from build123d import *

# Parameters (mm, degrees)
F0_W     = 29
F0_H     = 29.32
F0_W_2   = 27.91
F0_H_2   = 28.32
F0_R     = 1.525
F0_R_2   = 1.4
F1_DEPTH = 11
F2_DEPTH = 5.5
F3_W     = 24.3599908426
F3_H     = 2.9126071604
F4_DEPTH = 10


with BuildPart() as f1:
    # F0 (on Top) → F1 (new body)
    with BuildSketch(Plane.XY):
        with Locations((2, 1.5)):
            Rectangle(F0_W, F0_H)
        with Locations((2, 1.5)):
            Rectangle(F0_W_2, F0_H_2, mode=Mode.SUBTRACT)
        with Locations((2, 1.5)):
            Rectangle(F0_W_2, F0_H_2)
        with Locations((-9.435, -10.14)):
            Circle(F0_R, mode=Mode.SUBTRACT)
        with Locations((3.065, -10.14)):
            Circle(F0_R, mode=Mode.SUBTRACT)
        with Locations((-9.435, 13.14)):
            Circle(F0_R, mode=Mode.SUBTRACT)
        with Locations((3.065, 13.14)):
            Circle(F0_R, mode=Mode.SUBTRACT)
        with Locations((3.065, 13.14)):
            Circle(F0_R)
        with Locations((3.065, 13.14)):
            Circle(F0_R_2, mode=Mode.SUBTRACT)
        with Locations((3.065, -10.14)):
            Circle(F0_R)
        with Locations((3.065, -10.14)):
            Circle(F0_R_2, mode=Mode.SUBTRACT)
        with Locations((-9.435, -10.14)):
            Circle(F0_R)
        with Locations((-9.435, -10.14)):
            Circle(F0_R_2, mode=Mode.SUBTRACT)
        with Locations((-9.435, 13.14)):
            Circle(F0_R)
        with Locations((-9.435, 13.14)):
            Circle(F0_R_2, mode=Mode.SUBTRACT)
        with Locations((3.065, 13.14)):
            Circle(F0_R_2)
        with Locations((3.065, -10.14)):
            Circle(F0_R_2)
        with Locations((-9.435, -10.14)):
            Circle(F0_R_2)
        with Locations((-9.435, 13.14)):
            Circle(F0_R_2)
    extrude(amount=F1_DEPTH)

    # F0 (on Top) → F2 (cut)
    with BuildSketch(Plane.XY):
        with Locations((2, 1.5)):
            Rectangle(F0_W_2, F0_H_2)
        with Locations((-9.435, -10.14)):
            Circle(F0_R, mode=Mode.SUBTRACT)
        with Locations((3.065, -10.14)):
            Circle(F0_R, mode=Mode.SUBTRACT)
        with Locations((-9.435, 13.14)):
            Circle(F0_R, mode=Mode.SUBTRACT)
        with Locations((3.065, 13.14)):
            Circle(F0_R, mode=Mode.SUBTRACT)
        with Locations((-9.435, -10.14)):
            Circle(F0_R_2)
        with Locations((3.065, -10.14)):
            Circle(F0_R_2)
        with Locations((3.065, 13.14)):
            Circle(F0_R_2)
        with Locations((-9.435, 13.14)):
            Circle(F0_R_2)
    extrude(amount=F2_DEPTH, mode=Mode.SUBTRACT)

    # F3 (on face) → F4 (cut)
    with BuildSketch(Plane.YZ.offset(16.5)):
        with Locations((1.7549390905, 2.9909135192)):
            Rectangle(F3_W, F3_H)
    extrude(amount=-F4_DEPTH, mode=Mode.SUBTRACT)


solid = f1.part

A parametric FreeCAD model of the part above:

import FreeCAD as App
import Part
import Sketcher

V = App.Vector

doc = App.newDocument("Part")
body = doc.addObject("PartDesign::Body", "Body")

sketch1 = doc.addObject("Sketcher::SketchObject", "Sketch")
body.addObject(sketch1)
sketch1.AttachmentSupport = (doc.XY_Plane, [""])
sketch1.MapMode = "FlatFace"
sketch1.addGeometry(Part.LineSegment(V(-12, 16, 0), V(-12, -13, 0)), False)
sketch1.addGeometry(Part.LineSegment(V(-12, -13, 0), V(16, -13, 0)), False)
sketch1.addGeometry(Part.LineSegment(V(16, -13, 0), V(16, 16, 0)), False)
sketch1.addGeometry(Part.LineSegment(V(16, 16, 0), V(-12, 16, 0)), False)
sketch1.addConstraint(Sketcher.Constraint("Coincident", 0, 2, 1, 1))
sketch1.addConstraint(Sketcher.Constraint("Coincident", 1, 2, 2, 1))
sketch1.addConstraint(Sketcher.Constraint("Coincident", 2, 2, 3, 1))
sketch1.addConstraint(Sketcher.Constraint("Coincident", 3, 2, 0, 1))
sketch1.addConstraint(Sketcher.Constraint("Vertical", 0))
sketch1.addConstraint(Sketcher.Constraint("Horizontal", 1))
sketch1.addConstraint(Sketcher.Constraint("Vertical", 2))
sketch1.addConstraint(Sketcher.Constraint("Horizontal", 3))
sketch1.addConstraint(Sketcher.Constraint("DistanceX", 1, 1, 1, 2, 29.0))
sketch1.addConstraint(Sketcher.Constraint("DistanceY", 0, 2, 0, 1, 29.32))
sketch1.addConstraint(Sketcher.Constraint("DistanceX", 0, 2, -1, 1, 12.5))
sketch1.addConstraint(Sketcher.Constraint("DistanceY", 0, 2, -1, 1, 13.16))
pad1 = doc.addObject("PartDesign::Pad", "Pad")
body.addObject(pad1)
pad1.Profile = sketch1
pad1.Length = 11

sketch2 = doc.addObject("Sketcher::SketchObject", "Sketch001")
body.addObject(sketch2)
sketch2.AttachmentSupport = (doc.XY_Plane, [""])
sketch2.MapMode = "FlatFace"
sketch2.addGeometry(Part.LineSegment(V(-12, 15.7, 0), V(-12, -12.7, 0)), False)
sketch2.addGeometry(Part.LineSegment(V(-12, -12.7, 0), V(16, -12.7, 0)), False)
sketch2.addGeometry(Part.LineSegment(V(16, -12.7, 0), V(16, 15.7, 0)), False)
sketch2.addGeometry(Part.LineSegment(V(16, 15.7, 0), V(-12, 15.7, 0)), False)
sketch2.addGeometry(Part.Circle(V(-9.4, -10.1, 0), V(0, 0, 1), 1.5), False)
sketch2.addGeometry(Part.Circle(V(3.1, -10.1, 0), V(0, 0, 1), 1.5), False)
sketch2.addGeometry(Part.Circle(V(-9.4, 13.1, 0), V(0, 0, 1), 1.5), False)
sketch2.addGeometry(Part.Circle(V(3.1, 13.1, 0), V(0, 0, 1), 1.5), False)
sketch2.addGeometry(Part.Circle(V(-9.4, -10.1, 0), V(0, 0, 1), 1.4), False)
sketch2.addGeometry(Part.Circle(V(3.1, -10.1, 0), V(0, 0, 1), 1.4), False)
sketch2.addGeometry(Part.Circle(V(3.1, 13.1, 0), V(0, 0, 1), 1.4), False)
sketch2.addGeometry(Part.Circle(V(-9.4, 13.1, 0), V(0, 0, 1), 1.4), False)
sketch2.addConstraint(Sketcher.Constraint("Coincident", 0, 2, 1, 1))
sketch2.addConstraint(Sketcher.Constraint("Coincident", 1, 2, 2, 1))
sketch2.addConstraint(Sketcher.Constraint("Coincident", 2, 2, 3, 1))
sketch2.addConstraint(Sketcher.Constraint("Coincident", 3, 2, 0, 1))
sketch2.addConstraint(Sketcher.Constraint("Vertical", 0))
sketch2.addConstraint(Sketcher.Constraint("Horizontal", 1))
sketch2.addConstraint(Sketcher.Constraint("Vertical", 2))
sketch2.addConstraint(Sketcher.Constraint("Horizontal", 3))
sketch2.addConstraint(Sketcher.Constraint("Coincident", 8, 3, 4, 3))
sketch2.addConstraint(Sketcher.Constraint("Coincident", 9, 3, 5, 3))
sketch2.addConstraint(Sketcher.Constraint("Coincident", 10, 3, 7, 3))
sketch2.addConstraint(Sketcher.Constraint("Coincident", 11, 3, 6, 3))
sketch2.addConstraint(Sketcher.Constraint("Equal", 4, 5))
sketch2.addConstraint(Sketcher.Constraint("Equal", 5, 6))
sketch2.addConstraint(Sketcher.Constraint("Equal", 6, 7))
sketch2.addConstraint(Sketcher.Constraint("Equal", 8, 9))
sketch2.addConstraint(Sketcher.Constraint("Equal", 9, 10))
sketch2.addConstraint(Sketcher.Constraint("Equal", 10, 11))
sketch2.addConstraint(Sketcher.Constraint("Horizontal", 4, 3, 5, 3))
sketch2.addConstraint(Sketcher.Constraint("Horizontal", 6, 3, 7, 3))
sketch2.addConstraint(Sketcher.Constraint("Vertical", 4, 3, 6, 3))
sketch2.addConstraint(Sketcher.Constraint("Vertical", 5, 3, 7, 3))
sketch2.addConstraint(Sketcher.Constraint("Diameter", 8, 2.8))
sketch2.addConstraint(Sketcher.Constraint("Diameter", 4, 3.05))
sketch2.addConstraint(Sketcher.Constraint("DistanceX", 1, 1, 1, 2, 27.91))
sketch2.addConstraint(Sketcher.Constraint("DistanceY", 0, 2, 0, 1, 28.32))
sketch2.addConstraint(Sketcher.Constraint("DistanceX", 4, 3, 5, 3, 12.5))
sketch2.addConstraint(Sketcher.Constraint("DistanceY", 0, 2, 6, 3, 25.8))
sketch2.addConstraint(Sketcher.Constraint("DistanceY", 4, 3, 3, 2, 25.8))
sketch2.addConstraint(Sketcher.Constraint("DistanceY", 4, 3, -1, 1, 10.14))
sketch2.addConstraint(Sketcher.Constraint("DistanceX", 0, 2, 4, 3, 2.52))
sketch2.addConstraint(Sketcher.Constraint("DistanceX", 4, 3, -1, 1, 9.435))
pocket1 = doc.addObject("PartDesign::Pocket", "Pocket")
body.addObject(pocket1)
pocket1.Profile = sketch2
pocket1.Length = 5.5
pocket1.Reversed = True

sketch3 = doc.addObject("Sketcher::SketchObject", "Sketch002")
body.addObject(sketch3)
sketch3.AttachmentSupport = (doc.YZ_Plane, [""])
sketch3.MapMode = "FlatFace"
sketch3.AttachmentOffset = App.Placement(V(0, 0, 16.5), App.Rotation())
sketch3.addGeometry(Part.LineSegment(V(-10.4, 4.4, 0), V(-10.4, 1.5, 0)), False)
sketch3.addGeometry(Part.LineSegment(V(-10.4, 1.5, 0), V(13.9, 1.5, 0)), False)
sketch3.addGeometry(Part.LineSegment(V(13.9, 1.5, 0), V(13.9, 4.4, 0)), False)
sketch3.addGeometry(Part.LineSegment(V(13.9, 4.4, 0), V(-10.4, 4.4, 0)), False)
sketch3.addConstraint(Sketcher.Constraint("Coincident", 0, 2, 1, 1))
sketch3.addConstraint(Sketcher.Constraint("Coincident", 1, 2, 2, 1))
sketch3.addConstraint(Sketcher.Constraint("Coincident", 2, 2, 3, 1))
sketch3.addConstraint(Sketcher.Constraint("Coincident", 3, 2, 0, 1))
sketch3.addConstraint(Sketcher.Constraint("Vertical", 0))
sketch3.addConstraint(Sketcher.Constraint("Horizontal", 1))
sketch3.addConstraint(Sketcher.Constraint("Vertical", 2))
sketch3.addConstraint(Sketcher.Constraint("Horizontal", 3))
sketch3.addConstraint(Sketcher.Constraint("DistanceX", 1, 1, 1, 2, 24.359991))
sketch3.addConstraint(Sketcher.Constraint("DistanceY", 0, 2, 0, 1, 2.912607))
sketch3.addConstraint(Sketcher.Constraint("DistanceY", -1, 1, 0, 2, 1.53461))
sketch3.addConstraint(Sketcher.Constraint("DistanceX", 0, 2, -1, 1, 10.425056))
pocket2 = doc.addObject("PartDesign::Pocket", "Pocket001")
body.addObject(pocket2)
pocket2.Profile = sketch3
pocket2.Length = 10

doc.recompute()
